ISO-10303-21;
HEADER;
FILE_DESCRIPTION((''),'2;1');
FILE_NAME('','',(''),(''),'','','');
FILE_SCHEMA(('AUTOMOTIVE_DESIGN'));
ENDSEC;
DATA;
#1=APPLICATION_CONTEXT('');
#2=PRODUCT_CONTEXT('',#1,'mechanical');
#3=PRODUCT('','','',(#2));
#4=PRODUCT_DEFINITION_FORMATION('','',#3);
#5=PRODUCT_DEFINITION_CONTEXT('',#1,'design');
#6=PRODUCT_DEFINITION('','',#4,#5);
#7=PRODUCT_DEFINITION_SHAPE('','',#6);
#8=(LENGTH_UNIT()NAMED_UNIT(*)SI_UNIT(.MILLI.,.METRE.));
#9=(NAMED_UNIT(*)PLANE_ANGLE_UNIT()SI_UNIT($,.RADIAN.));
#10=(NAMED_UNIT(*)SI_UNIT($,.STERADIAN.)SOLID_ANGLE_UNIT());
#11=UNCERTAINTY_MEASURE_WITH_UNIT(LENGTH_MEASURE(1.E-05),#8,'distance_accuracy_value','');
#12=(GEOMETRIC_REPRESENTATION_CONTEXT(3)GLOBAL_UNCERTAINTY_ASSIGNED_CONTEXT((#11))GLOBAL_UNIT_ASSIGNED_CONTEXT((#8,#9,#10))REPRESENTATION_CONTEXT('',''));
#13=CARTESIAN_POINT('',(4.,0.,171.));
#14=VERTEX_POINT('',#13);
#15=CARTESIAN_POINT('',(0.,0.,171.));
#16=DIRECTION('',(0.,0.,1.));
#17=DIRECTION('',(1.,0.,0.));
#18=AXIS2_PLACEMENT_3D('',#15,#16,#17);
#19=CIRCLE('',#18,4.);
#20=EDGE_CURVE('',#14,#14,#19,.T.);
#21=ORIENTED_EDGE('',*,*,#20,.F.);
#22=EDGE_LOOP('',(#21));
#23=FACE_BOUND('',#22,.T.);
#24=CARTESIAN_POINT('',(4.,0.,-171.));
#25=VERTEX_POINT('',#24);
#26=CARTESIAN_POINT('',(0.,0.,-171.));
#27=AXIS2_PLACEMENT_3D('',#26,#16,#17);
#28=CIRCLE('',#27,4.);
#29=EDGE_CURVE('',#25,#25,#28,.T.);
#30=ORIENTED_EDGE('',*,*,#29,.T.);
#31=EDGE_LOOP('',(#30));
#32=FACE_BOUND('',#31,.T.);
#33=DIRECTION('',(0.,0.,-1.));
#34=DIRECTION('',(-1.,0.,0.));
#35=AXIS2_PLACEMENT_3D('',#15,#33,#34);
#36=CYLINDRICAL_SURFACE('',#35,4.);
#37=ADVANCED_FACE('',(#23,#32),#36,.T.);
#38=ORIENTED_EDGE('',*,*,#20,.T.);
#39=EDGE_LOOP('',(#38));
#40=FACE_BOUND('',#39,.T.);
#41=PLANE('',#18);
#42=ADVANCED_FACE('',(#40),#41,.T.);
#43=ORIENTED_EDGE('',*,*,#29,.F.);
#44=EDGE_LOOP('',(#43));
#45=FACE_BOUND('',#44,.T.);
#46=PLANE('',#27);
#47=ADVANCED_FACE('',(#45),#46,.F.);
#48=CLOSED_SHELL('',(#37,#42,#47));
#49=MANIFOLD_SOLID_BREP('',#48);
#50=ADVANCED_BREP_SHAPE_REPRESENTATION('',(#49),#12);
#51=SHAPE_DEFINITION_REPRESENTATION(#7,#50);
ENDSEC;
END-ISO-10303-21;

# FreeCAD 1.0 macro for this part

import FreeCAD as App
import Part
import Sketcher

doc = App.newDocument("Part")
body = doc.addObject("PartDesign::Body", "Body")

# Sketch on XY plane
sketch1 = body.newObject("Sketcher::SketchObject", "Sketch")
sketch1.AttachmentSupport = (doc.getObject("XY_Plane"), [""])
sketch1.MapMode = "FlatFace"
sketch1.addGeometry(Part.Circle(App.Vector(0, 0, 0), App.Vector(0, 0, 1), 4), False)
sketch1.addConstraint([
    Sketcher.Constraint("Coincident", 0, 3, -1, 1),
    Sketcher.Constraint("Diameter", 0, 8.0),
])
pad1 = body.newObject("PartDesign::Pad", "Pad")
pad1.Profile = sketch1
pad1.Length = 342
pad1.Midplane = True

doc.recompute()
